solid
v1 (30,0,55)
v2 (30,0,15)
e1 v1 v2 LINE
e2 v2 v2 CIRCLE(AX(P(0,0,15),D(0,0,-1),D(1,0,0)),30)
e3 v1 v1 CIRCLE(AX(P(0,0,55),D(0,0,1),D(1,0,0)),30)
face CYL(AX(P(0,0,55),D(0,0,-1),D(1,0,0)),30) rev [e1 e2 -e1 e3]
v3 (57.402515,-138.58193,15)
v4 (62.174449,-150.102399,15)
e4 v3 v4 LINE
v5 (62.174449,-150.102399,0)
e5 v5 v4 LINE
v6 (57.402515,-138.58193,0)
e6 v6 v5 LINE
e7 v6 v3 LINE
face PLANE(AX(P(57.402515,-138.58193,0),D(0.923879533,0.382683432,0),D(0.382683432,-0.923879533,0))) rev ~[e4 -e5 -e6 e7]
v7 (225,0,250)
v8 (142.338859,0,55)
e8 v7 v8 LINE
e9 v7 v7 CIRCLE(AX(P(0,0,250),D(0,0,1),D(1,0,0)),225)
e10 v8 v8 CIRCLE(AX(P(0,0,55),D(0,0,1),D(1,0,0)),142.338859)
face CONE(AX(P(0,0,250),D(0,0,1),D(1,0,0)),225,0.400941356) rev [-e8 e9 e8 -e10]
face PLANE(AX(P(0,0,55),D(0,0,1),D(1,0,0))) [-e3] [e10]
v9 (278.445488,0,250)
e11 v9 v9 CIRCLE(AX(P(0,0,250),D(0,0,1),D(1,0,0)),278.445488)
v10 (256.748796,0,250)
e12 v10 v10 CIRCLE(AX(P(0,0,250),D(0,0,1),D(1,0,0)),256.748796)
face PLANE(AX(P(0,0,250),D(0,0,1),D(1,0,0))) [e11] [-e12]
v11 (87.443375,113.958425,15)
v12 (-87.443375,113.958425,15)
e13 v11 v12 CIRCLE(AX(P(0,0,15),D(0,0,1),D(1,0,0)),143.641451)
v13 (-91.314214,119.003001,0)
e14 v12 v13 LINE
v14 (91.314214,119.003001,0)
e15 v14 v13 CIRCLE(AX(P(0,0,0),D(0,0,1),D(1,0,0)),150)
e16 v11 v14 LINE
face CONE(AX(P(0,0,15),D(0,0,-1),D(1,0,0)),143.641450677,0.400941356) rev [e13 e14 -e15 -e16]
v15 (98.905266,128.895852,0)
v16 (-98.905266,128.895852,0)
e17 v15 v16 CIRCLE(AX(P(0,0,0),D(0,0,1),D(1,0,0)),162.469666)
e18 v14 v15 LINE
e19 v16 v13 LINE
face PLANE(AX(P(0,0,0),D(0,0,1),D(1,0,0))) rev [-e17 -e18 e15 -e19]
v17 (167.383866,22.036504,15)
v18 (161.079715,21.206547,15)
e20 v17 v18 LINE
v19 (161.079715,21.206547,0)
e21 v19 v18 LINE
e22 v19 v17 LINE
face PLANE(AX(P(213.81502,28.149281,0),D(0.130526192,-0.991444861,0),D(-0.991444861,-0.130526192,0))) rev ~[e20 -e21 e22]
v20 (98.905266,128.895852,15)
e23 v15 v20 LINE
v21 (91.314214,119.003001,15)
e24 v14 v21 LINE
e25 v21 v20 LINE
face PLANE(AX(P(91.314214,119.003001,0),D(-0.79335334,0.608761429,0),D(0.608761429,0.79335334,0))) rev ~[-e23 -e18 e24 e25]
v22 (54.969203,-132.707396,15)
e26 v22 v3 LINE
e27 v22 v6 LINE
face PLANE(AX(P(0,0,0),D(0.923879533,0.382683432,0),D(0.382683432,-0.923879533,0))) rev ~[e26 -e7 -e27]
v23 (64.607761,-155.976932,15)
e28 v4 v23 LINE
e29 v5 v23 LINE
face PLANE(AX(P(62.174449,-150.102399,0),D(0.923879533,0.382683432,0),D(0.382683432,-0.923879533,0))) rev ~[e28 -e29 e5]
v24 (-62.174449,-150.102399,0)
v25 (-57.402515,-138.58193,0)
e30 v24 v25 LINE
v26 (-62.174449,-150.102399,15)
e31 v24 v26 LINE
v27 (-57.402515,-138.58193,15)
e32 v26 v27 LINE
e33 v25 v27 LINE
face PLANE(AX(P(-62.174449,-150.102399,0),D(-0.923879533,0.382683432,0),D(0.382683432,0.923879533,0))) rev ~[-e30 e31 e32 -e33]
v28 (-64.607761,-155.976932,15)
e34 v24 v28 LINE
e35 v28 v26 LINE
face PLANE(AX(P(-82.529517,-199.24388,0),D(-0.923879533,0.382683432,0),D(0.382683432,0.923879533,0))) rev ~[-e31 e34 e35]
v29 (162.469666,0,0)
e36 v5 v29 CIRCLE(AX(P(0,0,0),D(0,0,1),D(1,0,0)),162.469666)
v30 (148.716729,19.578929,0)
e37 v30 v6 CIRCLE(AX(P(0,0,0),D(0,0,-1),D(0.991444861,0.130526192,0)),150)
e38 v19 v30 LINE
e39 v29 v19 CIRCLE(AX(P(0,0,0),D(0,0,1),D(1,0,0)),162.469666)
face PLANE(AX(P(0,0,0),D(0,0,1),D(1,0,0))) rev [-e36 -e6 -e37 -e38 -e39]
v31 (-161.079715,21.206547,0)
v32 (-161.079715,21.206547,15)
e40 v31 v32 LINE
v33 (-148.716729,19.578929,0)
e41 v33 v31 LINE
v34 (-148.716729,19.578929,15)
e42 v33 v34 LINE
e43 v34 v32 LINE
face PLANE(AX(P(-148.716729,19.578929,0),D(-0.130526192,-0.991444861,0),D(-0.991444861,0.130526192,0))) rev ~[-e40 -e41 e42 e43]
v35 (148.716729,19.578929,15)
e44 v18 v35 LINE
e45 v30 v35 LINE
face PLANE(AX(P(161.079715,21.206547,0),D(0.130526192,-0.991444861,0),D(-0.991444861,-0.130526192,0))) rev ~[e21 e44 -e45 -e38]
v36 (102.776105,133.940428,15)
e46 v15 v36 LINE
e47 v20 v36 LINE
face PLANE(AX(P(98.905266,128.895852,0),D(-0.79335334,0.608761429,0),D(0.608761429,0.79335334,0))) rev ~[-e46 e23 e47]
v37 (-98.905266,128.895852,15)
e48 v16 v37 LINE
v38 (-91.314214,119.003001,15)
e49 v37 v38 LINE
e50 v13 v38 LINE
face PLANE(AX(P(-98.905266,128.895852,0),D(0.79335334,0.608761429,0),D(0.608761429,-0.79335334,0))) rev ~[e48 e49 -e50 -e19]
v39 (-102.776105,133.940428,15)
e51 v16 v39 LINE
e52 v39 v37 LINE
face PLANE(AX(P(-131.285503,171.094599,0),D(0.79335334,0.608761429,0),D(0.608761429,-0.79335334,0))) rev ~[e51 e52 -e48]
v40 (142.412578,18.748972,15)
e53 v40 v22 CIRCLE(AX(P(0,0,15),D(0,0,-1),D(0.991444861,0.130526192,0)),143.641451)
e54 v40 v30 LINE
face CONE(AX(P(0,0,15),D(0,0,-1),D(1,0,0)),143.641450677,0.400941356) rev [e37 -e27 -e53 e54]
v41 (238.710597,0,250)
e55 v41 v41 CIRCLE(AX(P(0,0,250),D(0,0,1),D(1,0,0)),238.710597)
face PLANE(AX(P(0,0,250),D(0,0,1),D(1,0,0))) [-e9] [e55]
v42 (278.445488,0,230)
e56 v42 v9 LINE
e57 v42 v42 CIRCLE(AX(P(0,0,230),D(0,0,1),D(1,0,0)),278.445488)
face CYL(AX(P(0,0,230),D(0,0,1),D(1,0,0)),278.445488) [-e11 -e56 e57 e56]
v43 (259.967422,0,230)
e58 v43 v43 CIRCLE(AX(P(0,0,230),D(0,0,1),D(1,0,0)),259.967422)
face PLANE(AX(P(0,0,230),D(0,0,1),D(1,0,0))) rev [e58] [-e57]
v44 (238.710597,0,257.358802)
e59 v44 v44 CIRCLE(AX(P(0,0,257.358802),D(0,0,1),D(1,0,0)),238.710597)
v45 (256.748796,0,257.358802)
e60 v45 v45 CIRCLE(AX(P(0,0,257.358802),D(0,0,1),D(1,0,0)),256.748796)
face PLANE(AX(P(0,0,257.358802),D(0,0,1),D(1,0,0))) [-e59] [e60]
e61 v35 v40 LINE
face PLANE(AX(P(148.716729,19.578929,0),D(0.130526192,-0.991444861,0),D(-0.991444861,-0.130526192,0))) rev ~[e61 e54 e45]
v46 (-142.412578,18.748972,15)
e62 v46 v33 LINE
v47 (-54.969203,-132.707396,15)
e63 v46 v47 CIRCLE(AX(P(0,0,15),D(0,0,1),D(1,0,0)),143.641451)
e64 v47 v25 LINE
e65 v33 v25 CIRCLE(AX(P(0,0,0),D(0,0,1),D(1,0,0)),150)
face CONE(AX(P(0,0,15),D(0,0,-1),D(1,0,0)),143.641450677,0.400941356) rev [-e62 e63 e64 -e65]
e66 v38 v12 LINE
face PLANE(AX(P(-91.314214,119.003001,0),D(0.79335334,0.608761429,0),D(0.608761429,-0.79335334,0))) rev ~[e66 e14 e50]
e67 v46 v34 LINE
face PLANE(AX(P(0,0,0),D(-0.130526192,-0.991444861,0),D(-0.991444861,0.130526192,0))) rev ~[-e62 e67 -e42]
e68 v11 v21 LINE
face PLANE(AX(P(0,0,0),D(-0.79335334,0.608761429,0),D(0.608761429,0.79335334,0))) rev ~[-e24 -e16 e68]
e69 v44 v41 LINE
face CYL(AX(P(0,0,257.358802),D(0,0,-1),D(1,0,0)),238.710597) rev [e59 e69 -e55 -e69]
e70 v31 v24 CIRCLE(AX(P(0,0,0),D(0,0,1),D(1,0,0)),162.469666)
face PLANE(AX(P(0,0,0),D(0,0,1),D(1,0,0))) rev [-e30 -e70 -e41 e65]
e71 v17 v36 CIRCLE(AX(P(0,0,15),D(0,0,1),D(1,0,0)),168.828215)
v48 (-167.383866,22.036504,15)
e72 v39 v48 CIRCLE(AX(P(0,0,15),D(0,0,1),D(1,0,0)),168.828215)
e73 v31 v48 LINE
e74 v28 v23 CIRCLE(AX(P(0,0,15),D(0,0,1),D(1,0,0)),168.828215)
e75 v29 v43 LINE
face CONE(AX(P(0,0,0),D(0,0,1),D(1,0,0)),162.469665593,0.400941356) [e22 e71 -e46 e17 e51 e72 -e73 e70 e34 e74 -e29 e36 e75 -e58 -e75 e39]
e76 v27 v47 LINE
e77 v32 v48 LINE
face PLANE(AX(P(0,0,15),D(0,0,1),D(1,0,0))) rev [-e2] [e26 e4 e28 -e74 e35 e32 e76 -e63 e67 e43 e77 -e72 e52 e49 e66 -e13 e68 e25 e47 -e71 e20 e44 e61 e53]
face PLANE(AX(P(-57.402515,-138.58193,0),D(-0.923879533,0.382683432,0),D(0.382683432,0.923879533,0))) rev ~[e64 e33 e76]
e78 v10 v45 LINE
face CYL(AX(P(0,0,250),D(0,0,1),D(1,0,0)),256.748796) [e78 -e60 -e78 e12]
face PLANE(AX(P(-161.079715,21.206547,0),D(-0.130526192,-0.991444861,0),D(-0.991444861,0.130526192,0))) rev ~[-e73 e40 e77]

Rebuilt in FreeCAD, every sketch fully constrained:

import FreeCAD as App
import Part
import Sketcher
Q = App.Units.Quantity


def add_polygon(sketch, points):
    """Adds a closed chain of lines whose ends are joined by coincident constraints."""
    first, n = sketch.GeometryCount, len(points)
    for a, b in zip(points, points[1:] + points[:1]):
        sketch.addGeometry(Part.LineSegment(App.Vector(*a, 0), App.Vector(*b, 0)), False)
    for i in range(n):
        sketch.addConstraint(Sketcher.Constraint("Coincident", first + i, 2, first + (i + 1) % n, 1))

doc = App.newDocument("Part")
body = doc.addObject("PartDesign::Body", "Body")

# Sketch on XZ plane
sketch1 = body.newObject("Sketcher::SketchObject", "Sketch")
sketch1.AttachmentSupport = (doc.getObject("XZ_Plane"), [""])
sketch1.MapMode = "FlatFace"
add_polygon(sketch1, [(30, 55), (30, 15), (144, 15), (150, 0), (162, 0), (260, 230), (278, 230), (278, 250), (257, 250), (257, 257), (239, 257), (239, 250), (225, 250), (142, 55)])  # lines 0-13
sketch1.addConstraint([
    Sketcher.Constraint("Vertical", 0),
    Sketcher.Constraint("Horizontal", 1),
    Sketcher.Constraint("Horizontal", 3),
    Sketcher.Constraint("Horizontal", 5),
    Sketcher.Constraint("Vertical", 6),
    Sketcher.Constraint("Horizontal", 7),
    Sketcher.Constraint("Vertical", 8),
    Sketcher.Constraint("Horizontal", 9),
    Sketcher.Constraint("Vertical", 10),
    Sketcher.Constraint("Horizontal", 11),
    Sketcher.Constraint("Horizontal", 13),
    Sketcher.Constraint("PointOnObject", 2, 2, -1),
    Sketcher.Constraint("Parallel", 4, 12),
    Sketcher.Constraint("Horizontal", 7, 2, 10, 2),
    Sketcher.Constraint("DistanceY", 0, 2, 0, 1, 40.0),
    Sketcher.Constraint("DistanceY", 6, 1, 6, 2, 20.0),
    Sketcher.Constraint("DistanceX", -1, 1, 0, 2, 30.0),
    Sketcher.Constraint("DistanceY", -1, 1, 0, 2, 15.0),
    Sketcher.Constraint("DistanceX", -1, 1, 2, 2, 150.0),
    Sketcher.Constraint("DistanceY", -1, 1, 4, 2, 230.0),
    Sketcher.Constraint("DistanceX", -1, 1, 11, 2, 225.0),
    Sketcher.Constraint("DistanceX", 9, 2, 9, 1, 18.038198),
    Sketcher.Constraint("DistanceX", 1, 1, 1, 2, 113.641451),
    Sketcher.Constraint("DistanceX", 13, 2, 13, 1, 112.338859),
    Sketcher.Constraint("DistanceX", 3, 1, 3, 2, 12.469666),
    Sketcher.Constraint("DistanceX", 5, 1, 5, 2, 18.478066),
    Sketcher.Constraint("DistanceX", 7, 2, 7, 1, 21.696692),
    Sketcher.Constraint("DistanceY", 8, 1, 8, 2, 7.358802),
])
revolution = body.newObject("PartDesign::Revolution", "Revolution")
revolution.Profile = sketch1
revolution.ReferenceAxis = (sketch1, ["V_Axis"])
revolution.Angle = 360

# Sketch on XY plane
sketch2 = body.newObject("Sketcher::SketchObject", "Sketch001")
sketch2.AttachmentSupport = (doc.getObject("XY_Plane"), [""])
sketch2.MapMode = "FlatFace"
add_polygon(sketch2, [(-62, -150), (-57, -139), (0, 0), (57, -139), (62, -150), (83, -199), (-83, -199)])  # lines 0-6
add_polygon(sketch2, [(91, 119), (99, 129), (131, 171), (214, 28), (161, 21), (149, 20), (0, 0)])  # lines 7-13
add_polygon(sketch2, [(-149, 20), (-161, 21), (-214, 28), (-131, 171), (-99, 129), (-91, 119), (0, 0)])  # lines 14-20
sketch2.addConstraint([
    Sketcher.Constraint("Horizontal", 5),
    Sketcher.Constraint("Coincident", 1, 2, -1, 1),
    Sketcher.Constraint("Coincident", 12, 2, -1, 1),
    Sketcher.Constraint("Coincident", 19, 2, -1, 1),
    Sketcher.Constraint("Symmetric", 0, 2, 2, 2, -2),
    Sketcher.Constraint("Symmetric", 3, 2, 6, 2, -2),
    Sketcher.Constraint("Symmetric", 10, 2, 14, 2, -2),
    Sketcher.Constraint("Symmetric", 9, 2, 15, 2, -2),
    Sketcher.Constraint("Symmetric", 8, 2, 16, 2, -2),
    Sketcher.Constraint("Symmetric", 7, 2, 17, 2, -2),
    Sketcher.Constraint("Symmetric", 13, 2, 18, 2, -2),
    Sketcher.Constraint("Symmetric", 11, 2, 20, 2, -2),
    Sketcher.Constraint("Parallel", 0, 1),
    Sketcher.Constraint("Parallel", 3, 4),
    Sketcher.Constraint("Parallel", 1, 6),
    Sketcher.Constraint("Parallel", 7, 8),
    Sketcher.Constraint("Parallel", 10, 11),
    Sketcher.Constraint("Parallel", 11, 12),
    Sketcher.Constraint("Parallel", 8, 13),
    Sketcher.Constraint("Equal", 3, 7),
    Sketcher.Constraint("Equal", 6, 8),
    Sketcher.Constraint("Equal", 8, 10),
    Sketcher.Constraint("Equal", 7, 11),
    Sketcher.Constraint("Equal", 2, 12),
    Sketcher.Constraint("Equal", 12, 13),
    Sketcher.Constraint("Angle", 9, Q("-60 deg")),
    Sketcher.Constraint("Distance", 1, 150.0),
    Sketcher.Constraint("Angle", 0, Q("67.5 deg")),
    Sketcher.Constraint("Angle", 7, Q("52.5 deg")),
    Sketcher.Constraint("DistanceY", 3, 2, -1, 1, 150.102399),
    Sketcher.Constraint("DistanceY", -1, 1, 8, 2, 171.094599),
])
pocket1 = body.newObject("PartDesign::Pocket", "Pocket")
pocket1.Profile = sketch2
pocket1.Length = 15
pocket1.Reversed = True

doc.recompute()
